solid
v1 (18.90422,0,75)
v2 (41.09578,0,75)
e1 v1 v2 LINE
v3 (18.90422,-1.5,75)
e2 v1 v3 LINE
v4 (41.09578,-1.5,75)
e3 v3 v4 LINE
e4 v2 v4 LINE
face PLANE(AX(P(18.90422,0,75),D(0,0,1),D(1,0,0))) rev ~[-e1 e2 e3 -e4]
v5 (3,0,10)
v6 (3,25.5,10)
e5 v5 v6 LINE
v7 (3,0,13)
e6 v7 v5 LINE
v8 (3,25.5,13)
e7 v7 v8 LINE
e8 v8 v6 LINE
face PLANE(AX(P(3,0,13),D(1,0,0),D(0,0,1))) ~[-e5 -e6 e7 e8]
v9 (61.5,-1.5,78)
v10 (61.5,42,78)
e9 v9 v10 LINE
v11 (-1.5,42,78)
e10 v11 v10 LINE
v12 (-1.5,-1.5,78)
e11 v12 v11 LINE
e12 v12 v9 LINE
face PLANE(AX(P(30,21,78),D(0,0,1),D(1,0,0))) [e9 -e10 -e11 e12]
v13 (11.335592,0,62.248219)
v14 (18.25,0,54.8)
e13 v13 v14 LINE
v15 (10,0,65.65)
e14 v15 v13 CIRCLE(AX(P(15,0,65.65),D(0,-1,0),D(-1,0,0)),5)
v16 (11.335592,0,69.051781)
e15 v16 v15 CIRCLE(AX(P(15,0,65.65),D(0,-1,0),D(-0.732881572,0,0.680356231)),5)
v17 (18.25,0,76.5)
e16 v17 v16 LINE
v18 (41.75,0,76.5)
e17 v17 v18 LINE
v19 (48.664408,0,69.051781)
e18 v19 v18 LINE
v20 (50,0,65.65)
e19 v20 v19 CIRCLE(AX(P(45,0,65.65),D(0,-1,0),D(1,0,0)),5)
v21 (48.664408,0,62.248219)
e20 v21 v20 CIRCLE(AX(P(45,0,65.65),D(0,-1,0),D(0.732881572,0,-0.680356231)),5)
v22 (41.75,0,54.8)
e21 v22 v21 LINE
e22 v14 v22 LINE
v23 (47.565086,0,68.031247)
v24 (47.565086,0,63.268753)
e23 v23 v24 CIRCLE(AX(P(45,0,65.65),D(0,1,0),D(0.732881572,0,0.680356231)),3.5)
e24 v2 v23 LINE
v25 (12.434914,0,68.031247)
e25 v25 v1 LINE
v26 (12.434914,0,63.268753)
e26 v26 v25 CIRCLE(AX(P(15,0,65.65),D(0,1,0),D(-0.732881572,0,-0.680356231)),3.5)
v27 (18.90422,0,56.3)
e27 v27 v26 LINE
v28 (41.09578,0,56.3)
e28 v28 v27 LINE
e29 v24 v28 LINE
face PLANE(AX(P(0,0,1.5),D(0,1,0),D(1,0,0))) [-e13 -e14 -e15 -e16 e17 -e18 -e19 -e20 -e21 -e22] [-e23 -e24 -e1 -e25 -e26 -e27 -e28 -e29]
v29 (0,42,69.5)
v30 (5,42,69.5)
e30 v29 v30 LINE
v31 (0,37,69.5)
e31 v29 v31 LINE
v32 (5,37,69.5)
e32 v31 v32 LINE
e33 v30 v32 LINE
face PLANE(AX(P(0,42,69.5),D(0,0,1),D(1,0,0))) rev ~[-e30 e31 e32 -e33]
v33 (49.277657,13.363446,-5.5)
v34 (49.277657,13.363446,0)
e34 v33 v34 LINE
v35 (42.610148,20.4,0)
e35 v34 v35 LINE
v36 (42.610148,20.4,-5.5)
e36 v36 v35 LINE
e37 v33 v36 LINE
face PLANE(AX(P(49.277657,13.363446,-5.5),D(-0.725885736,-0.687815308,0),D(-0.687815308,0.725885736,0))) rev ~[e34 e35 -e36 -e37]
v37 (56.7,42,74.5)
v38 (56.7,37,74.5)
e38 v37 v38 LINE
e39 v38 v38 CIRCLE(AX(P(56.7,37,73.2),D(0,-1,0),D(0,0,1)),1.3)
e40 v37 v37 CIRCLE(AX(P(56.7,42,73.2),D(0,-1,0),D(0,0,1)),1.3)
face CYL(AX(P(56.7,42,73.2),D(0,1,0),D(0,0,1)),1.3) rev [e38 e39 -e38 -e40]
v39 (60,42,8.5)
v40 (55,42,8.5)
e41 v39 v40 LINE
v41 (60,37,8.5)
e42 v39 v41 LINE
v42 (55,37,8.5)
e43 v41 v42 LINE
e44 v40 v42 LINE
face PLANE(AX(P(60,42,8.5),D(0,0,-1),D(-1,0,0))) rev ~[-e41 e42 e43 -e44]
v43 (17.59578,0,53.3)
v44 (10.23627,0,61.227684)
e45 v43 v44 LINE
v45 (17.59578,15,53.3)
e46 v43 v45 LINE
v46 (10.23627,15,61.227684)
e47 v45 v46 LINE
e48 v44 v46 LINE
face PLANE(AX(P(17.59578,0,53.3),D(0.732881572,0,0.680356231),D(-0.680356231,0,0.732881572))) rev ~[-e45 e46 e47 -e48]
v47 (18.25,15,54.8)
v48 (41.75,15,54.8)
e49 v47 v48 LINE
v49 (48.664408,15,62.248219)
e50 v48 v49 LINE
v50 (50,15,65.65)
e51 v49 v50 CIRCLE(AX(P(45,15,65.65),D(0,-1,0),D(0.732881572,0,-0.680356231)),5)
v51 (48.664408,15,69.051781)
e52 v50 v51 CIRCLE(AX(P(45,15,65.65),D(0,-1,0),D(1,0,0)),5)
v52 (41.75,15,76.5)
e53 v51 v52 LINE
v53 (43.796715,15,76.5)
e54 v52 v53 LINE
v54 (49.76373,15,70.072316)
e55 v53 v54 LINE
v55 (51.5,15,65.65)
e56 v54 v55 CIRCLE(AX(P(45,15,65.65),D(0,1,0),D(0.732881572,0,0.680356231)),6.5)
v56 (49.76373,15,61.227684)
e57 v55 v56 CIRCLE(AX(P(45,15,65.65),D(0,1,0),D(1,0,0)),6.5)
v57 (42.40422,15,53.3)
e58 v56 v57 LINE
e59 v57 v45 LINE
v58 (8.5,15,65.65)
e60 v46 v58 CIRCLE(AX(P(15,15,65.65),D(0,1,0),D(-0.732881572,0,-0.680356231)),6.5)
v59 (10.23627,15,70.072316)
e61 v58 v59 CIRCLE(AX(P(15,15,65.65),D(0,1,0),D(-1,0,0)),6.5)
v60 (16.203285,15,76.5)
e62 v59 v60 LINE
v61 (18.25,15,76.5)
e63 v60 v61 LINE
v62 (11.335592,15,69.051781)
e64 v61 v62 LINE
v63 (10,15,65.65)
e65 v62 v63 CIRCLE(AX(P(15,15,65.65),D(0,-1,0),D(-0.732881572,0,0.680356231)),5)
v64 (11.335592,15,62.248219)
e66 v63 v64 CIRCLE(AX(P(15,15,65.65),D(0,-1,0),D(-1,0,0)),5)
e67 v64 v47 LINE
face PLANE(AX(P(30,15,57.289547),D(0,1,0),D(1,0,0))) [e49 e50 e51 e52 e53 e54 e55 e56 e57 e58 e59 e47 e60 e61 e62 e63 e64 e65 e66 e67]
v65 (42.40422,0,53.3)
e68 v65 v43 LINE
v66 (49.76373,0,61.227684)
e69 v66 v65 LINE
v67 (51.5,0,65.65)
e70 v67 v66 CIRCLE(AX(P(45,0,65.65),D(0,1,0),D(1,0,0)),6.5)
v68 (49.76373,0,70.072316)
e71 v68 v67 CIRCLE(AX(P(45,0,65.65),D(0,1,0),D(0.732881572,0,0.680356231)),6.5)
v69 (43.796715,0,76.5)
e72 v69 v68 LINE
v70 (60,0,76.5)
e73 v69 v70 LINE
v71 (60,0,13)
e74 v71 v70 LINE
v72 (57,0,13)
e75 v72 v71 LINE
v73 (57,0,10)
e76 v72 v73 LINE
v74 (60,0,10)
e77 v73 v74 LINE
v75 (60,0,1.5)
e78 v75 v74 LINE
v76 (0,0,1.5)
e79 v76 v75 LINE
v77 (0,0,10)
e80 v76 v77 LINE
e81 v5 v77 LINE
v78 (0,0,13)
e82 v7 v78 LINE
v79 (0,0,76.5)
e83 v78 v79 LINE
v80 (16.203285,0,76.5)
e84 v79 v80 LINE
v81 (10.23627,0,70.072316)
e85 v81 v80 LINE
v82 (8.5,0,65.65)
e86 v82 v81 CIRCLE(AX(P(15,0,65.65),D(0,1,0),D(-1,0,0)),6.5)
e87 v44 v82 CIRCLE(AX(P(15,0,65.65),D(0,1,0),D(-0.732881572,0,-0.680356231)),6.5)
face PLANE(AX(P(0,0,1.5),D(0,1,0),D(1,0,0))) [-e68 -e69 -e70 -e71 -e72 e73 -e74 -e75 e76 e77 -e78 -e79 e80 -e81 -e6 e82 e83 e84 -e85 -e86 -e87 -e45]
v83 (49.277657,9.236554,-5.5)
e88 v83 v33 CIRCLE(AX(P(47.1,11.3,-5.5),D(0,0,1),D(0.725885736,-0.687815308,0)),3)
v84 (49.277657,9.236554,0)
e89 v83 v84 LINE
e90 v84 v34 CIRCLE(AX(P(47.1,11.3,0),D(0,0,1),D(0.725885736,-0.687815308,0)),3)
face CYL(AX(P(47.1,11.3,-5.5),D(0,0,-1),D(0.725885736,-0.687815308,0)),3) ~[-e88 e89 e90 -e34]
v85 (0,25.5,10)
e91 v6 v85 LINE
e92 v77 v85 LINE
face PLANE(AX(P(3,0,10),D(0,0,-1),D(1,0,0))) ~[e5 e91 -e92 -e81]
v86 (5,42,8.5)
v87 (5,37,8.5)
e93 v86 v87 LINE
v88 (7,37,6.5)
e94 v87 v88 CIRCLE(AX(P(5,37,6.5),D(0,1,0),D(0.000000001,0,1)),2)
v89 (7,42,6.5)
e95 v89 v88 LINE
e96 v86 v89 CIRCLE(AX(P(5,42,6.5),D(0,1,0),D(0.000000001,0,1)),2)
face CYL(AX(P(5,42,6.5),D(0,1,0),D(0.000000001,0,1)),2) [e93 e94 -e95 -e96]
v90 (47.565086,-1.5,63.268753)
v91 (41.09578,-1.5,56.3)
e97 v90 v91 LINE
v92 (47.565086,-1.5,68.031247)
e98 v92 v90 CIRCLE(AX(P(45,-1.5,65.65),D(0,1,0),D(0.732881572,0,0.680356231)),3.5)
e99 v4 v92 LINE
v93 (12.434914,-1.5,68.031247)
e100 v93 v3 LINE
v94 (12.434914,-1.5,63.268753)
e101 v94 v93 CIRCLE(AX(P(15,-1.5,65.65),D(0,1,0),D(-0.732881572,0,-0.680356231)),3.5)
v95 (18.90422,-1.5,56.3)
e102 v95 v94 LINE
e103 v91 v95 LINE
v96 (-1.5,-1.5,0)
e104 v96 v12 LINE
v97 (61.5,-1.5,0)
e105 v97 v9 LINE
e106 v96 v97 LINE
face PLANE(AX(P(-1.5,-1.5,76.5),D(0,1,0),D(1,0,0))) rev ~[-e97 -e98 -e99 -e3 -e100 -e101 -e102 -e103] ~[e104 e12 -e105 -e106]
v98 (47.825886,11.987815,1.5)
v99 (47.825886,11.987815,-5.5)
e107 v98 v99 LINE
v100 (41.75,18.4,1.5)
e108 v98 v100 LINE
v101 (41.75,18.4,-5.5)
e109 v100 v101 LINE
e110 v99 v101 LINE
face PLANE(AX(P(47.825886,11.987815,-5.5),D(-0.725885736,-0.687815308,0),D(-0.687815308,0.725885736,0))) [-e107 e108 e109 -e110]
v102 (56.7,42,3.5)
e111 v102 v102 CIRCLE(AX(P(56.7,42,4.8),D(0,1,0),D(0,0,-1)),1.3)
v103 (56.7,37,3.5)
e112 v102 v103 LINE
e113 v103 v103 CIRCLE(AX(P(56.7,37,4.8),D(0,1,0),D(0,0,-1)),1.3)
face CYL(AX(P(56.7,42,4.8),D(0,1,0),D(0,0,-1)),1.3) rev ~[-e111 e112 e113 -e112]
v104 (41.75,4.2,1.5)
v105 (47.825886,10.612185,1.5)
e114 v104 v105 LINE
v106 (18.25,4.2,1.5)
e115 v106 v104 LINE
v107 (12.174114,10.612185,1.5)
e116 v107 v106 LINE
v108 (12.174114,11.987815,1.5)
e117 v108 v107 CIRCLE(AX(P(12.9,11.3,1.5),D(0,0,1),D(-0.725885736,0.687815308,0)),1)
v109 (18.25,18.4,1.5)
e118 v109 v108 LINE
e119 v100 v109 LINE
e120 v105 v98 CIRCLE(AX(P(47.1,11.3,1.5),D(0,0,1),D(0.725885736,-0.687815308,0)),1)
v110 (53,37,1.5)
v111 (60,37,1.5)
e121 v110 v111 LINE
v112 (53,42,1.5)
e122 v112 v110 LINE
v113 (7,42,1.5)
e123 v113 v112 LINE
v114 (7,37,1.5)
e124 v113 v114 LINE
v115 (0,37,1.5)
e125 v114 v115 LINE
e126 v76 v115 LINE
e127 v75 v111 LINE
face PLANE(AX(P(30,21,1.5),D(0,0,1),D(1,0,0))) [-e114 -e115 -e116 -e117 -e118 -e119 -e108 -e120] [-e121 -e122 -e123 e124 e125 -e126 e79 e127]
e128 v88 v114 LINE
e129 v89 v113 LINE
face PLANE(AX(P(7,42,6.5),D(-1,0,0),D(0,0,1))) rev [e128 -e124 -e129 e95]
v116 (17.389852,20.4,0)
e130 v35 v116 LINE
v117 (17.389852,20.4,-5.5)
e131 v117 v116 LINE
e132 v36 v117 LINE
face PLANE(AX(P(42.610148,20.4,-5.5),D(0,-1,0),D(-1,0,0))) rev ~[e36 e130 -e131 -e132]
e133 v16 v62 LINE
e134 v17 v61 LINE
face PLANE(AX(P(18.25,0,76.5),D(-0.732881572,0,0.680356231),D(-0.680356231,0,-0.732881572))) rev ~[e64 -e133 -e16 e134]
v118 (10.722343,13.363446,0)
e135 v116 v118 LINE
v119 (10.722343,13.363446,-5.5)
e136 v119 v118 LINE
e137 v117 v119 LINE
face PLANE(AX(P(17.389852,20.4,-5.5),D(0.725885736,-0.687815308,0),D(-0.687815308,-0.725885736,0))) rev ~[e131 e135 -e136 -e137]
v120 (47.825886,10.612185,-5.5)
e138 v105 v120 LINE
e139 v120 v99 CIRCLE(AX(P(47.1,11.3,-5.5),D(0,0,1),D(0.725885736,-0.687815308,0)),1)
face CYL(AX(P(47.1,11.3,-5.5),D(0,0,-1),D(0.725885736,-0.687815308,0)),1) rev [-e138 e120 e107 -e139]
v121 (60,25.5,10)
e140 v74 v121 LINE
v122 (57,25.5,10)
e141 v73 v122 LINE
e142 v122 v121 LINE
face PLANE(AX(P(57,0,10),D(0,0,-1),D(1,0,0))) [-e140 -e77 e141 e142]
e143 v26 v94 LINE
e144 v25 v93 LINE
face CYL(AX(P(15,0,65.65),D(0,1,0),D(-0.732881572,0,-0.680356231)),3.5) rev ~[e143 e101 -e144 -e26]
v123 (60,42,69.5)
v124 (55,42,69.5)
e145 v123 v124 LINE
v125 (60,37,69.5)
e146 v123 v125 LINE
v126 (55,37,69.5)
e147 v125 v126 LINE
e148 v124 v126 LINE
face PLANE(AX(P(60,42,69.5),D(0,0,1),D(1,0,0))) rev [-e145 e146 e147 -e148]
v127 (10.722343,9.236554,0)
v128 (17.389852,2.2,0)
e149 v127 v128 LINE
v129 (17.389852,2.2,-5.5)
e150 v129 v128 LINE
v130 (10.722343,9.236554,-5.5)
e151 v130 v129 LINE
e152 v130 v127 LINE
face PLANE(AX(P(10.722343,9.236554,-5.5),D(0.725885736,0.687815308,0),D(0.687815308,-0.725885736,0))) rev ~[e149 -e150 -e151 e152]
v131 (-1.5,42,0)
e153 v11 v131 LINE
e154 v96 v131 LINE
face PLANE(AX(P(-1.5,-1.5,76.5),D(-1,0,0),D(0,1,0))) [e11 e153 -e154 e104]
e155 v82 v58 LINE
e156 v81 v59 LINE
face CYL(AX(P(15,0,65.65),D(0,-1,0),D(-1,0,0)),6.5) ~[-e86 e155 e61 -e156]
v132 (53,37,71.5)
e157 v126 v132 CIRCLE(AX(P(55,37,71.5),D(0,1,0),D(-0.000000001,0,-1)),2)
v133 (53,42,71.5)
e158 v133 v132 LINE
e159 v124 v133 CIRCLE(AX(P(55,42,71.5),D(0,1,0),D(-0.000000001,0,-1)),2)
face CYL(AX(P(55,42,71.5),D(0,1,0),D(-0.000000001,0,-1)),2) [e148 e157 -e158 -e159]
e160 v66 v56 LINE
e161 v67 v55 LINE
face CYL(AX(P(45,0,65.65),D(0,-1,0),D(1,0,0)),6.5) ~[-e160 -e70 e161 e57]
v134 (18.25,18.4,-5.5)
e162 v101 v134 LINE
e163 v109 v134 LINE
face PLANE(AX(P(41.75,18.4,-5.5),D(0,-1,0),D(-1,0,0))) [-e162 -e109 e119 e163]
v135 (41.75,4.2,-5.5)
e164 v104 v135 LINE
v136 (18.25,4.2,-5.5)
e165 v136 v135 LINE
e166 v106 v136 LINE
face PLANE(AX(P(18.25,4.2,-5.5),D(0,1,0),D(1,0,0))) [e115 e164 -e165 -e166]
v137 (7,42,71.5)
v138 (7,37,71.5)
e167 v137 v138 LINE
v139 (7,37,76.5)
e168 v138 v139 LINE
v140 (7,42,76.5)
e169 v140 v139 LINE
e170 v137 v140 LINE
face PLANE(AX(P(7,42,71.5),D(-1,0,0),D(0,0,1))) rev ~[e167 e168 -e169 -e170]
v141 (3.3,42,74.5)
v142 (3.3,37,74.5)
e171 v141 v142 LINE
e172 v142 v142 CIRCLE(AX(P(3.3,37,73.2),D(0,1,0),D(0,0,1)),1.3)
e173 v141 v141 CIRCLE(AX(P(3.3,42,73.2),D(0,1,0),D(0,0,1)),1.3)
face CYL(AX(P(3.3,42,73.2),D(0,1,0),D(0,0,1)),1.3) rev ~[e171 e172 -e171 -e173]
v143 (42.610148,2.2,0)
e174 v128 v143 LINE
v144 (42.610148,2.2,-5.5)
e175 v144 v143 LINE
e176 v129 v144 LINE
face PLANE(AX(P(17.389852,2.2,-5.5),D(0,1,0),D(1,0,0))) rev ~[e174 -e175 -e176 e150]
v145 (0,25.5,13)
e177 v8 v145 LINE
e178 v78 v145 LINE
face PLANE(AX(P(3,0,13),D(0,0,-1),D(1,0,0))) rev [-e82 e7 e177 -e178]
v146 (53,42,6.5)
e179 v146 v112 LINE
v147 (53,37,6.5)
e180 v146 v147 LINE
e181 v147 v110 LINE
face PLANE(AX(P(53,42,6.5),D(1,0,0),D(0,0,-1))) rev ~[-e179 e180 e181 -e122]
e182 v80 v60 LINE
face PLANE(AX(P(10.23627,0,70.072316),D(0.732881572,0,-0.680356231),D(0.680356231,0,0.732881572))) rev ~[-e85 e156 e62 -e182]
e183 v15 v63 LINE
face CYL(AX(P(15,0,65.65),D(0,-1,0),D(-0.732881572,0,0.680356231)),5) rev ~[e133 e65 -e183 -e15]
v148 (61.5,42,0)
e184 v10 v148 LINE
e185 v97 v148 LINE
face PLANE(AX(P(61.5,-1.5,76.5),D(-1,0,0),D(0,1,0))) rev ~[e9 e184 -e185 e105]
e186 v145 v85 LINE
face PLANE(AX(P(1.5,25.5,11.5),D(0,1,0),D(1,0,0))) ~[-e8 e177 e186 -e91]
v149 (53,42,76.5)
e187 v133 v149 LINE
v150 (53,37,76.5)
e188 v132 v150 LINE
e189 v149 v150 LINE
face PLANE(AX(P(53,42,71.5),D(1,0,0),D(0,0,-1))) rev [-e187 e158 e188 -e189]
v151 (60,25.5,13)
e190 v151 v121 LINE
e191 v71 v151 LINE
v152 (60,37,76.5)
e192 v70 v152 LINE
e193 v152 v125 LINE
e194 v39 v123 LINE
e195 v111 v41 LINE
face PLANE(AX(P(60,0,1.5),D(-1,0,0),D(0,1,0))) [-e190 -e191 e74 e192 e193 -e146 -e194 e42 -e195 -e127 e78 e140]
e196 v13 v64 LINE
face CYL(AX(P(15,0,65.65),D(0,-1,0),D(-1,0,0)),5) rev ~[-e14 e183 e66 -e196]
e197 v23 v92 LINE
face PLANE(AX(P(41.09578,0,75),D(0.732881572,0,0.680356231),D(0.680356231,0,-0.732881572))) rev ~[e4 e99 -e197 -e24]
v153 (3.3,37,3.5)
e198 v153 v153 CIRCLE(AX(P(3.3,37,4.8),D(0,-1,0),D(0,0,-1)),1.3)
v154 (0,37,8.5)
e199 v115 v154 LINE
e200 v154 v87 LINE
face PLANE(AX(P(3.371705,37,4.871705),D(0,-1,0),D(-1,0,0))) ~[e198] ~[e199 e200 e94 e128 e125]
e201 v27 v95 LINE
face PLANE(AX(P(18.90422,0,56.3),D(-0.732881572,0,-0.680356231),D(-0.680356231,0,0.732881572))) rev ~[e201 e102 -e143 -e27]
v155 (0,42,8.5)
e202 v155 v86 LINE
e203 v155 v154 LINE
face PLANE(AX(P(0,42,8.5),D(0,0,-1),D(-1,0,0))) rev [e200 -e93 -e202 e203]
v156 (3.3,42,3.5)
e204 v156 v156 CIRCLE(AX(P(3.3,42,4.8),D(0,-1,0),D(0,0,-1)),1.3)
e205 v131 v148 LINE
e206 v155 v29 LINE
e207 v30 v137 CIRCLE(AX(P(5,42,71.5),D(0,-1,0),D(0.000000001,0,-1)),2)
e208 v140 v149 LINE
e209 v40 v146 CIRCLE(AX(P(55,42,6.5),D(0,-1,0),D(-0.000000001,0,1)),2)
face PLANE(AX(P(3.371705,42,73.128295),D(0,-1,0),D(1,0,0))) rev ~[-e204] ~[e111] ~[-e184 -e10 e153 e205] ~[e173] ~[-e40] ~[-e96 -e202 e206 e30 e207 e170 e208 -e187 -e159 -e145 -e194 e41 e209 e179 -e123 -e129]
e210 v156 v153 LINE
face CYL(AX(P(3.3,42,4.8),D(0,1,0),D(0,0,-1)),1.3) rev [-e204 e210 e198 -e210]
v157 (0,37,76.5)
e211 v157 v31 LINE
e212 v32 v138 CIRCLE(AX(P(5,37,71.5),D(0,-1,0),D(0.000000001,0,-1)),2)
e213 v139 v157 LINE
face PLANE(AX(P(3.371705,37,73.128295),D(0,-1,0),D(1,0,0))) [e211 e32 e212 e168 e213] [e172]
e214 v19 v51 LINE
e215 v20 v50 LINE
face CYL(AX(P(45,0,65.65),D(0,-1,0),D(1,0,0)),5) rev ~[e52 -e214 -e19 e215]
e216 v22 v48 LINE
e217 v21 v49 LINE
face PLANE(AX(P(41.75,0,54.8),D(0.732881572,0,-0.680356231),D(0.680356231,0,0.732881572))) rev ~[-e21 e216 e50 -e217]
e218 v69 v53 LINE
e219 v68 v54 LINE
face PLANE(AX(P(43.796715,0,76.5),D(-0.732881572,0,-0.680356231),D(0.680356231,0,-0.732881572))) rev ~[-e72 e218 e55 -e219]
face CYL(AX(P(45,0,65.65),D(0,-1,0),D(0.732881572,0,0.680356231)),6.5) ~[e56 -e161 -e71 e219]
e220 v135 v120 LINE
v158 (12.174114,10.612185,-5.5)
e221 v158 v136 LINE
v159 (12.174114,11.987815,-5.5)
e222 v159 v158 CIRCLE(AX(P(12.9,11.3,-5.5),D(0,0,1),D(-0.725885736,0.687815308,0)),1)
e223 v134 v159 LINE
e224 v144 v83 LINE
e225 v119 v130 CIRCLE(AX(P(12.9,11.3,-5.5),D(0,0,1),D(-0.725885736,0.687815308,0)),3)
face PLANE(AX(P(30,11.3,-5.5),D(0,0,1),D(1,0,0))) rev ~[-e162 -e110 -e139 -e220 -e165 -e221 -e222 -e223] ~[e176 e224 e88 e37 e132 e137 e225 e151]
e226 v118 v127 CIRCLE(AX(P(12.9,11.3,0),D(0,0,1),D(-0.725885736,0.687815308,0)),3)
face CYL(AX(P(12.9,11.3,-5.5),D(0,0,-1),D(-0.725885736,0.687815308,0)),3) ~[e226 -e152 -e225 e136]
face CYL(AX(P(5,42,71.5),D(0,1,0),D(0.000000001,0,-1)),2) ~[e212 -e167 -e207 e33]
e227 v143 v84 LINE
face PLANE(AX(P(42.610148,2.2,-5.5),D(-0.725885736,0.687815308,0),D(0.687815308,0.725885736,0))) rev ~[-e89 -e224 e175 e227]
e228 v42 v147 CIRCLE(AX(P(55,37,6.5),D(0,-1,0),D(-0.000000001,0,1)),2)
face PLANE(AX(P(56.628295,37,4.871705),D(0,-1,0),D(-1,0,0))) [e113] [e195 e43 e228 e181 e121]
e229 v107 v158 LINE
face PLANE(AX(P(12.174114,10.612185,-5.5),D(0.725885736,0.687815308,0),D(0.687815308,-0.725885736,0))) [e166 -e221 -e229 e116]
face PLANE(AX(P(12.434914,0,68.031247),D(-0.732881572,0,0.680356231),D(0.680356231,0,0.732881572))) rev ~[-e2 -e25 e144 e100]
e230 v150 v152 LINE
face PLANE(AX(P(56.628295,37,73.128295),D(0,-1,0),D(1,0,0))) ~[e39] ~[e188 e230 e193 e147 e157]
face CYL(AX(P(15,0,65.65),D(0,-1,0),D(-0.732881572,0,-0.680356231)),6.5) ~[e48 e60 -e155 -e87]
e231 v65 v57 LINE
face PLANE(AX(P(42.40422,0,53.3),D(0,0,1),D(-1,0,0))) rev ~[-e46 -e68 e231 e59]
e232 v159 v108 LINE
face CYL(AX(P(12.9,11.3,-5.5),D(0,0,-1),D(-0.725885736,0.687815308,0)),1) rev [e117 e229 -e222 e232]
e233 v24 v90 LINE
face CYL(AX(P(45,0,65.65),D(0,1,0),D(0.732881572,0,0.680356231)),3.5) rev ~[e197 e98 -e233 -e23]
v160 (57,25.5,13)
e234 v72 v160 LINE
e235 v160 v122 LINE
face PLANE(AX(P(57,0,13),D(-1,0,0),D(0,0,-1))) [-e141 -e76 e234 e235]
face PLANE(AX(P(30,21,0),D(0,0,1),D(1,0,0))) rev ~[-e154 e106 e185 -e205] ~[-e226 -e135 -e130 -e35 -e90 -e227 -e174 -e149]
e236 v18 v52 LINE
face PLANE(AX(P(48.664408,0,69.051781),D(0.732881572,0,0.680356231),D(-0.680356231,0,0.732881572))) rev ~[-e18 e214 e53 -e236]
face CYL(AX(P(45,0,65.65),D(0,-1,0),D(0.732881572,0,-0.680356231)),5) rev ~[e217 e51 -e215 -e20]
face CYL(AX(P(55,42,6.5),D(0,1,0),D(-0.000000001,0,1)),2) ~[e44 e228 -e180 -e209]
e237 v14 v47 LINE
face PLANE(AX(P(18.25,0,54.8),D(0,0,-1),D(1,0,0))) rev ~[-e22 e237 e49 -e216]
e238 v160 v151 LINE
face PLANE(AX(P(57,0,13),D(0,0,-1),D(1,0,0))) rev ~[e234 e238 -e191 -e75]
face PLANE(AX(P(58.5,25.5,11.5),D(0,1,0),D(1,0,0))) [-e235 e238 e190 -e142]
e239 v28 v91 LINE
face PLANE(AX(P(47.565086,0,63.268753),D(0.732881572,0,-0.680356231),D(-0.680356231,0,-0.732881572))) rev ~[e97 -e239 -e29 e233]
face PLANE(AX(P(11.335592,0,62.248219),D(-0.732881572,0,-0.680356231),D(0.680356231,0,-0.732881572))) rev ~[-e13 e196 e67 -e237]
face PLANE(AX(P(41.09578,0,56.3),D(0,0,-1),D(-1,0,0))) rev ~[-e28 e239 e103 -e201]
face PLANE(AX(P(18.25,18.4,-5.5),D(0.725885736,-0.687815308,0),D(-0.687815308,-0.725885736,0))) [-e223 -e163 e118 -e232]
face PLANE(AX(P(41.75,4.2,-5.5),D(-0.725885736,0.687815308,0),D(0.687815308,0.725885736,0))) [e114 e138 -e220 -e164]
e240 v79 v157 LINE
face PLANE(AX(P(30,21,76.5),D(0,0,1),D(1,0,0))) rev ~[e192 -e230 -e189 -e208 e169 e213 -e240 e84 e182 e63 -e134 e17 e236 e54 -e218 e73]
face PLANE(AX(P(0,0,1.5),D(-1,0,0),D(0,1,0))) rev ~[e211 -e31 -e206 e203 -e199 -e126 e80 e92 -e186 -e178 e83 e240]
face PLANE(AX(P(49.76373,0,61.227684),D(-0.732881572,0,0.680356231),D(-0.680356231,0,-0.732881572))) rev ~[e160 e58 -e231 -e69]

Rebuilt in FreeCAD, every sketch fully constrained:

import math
import FreeCAD as App
import Part
import Sketcher


def add_polygon(sketch, points):
    """Adds a closed chain of lines whose ends are joined by coincident constraints."""
    first, n = sketch.GeometryCount, len(points)
    for a, b in zip(points, points[1:] + points[:1]):
        sketch.addGeometry(Part.LineSegment(App.Vector(*a, 0), App.Vector(*b, 0)), False)
    for i in range(n):
        sketch.addConstraint(Sketcher.Constraint("Coincident", first + i, 2, first + (i + 1) % n, 1))

doc = App.newDocument("Part")
params = doc.addObject("Spreadsheet::Sheet", "Params")
for row, (alias, value) in enumerate([
    ("sketch1_radius", "1 mm"),
    ("sketch1_width", "63 mm"),
    ("sketch1_height", "45 mm"),
    ("sketch1_width2", "23.5 mm"),
    ("pad1_length", "1.5 mm"),
    ("sketch2_width", "63 mm"),
    ("sketch2_width2", "60 mm"),
    ("sketch2_height", "45 mm"),
    ("sketch2_height2", "42 mm"),
    ("pad2_length", "75 mm"),
    ("sketch3_radius", "5 mm"),
    ("sketch3_radius2", "6.5 mm"),
    ("sketch3_width", "23.5 mm"),
    ("pad3_length", "15 mm"),
    ("sketch4_radius", "3.5 mm"),
    ("pocket1_length", "27 mm"),
    ("sketch5_width", "63 mm"),
    ("sketch5_height", "45 mm"),
    ("pad4_length", "1.5 mm"),
    ("sketch6_width", "63 mm"),
    ("sketch6_height", "1.5 mm"),
    ("sketch7_radius", "2 mm"),
    ("sketch7_diameter", "2.6 mm"),
    ("sketch7_width", "7 mm"),
    ("pad5_length", "5 mm"),
    ("sketch8_radius", "2 mm"),
    ("sketch8_diameter", "2.6 mm"),
    ("sketch8_width", "7 mm"),
    ("pad6_length", "5 mm"),
    ("sketch9_radius", "3 mm"),
    ("sketch9_radius2", "1 mm"),
    ("sketch9_width", "23.5 mm"),
    ("pad7_length", "5.5 mm"),
    ("sketch10_width", "3 mm"),
    ("pad8_length", "25.5 mm"),
], start=1):
    params.set(f"A{row}", alias)
    params.set(f"B{row}", "=" + value)
    params.setAlias(f"B{row}", alias)

body = doc.addObject("PartDesign::Body", "Body")

# Sketch on XY plane
sketch1 = body.newObject("Sketcher::SketchObject", "Sketch")
sketch1.AttachmentSupport = (doc.getObject("XY_Plane"), [""])
sketch1.MapMode = "FlatFace"
add_polygon(sketch1, [(-1.5, 43.5), (-1.5, -1.5), (61.5, -1.5), (61.5, 43.5)])  # lines 0-3
sketch1.addGeometry(Part.LineSegment(App.Vector(47.8, 10.6, 0), App.Vector(41.8, 4.2, 0)), False)  # 4
sketch1.addGeometry(Part.LineSegment(App.Vector(41.8, 4.2, 0), App.Vector(18.2, 4.2, 0)), False)  # 5
sketch1.addGeometry(Part.LineSegment(App.Vector(18.2, 4.2, 0), App.Vector(12.2, 10.6, 0)), False)  # 6
sketch1.addGeometry(Part.ArcOfCircle(Part.Circle(App.Vector(12.9, 11.3, 0), App.Vector(0, 0, 1), 1), math.radians(137), math.radians(223)), False)  # 7
sketch1.addGeometry(Part.LineSegment(App.Vector(12.2, 12, 0), App.Vector(18.2, 18.4, 0)), False)  # 8
sketch1.addGeometry(Part.LineSegment(App.Vector(18.2, 18.4, 0), App.Vector(41.8, 18.4, 0)), False)  # 9
sketch1.addGeometry(Part.LineSegment(App.Vector(41.8, 18.4, 0), App.Vector(47.8, 12, 0)), False)  # 10
sketch1.addGeometry(Part.ArcOfCircle(Part.Circle(App.Vector(47.1, 11.3, 0), App.Vector(0, 0, 1), 1), math.radians(-43), math.radians(43)), False)  # 11
sketch1.addConstraint(Sketcher.Constraint("Coincident", 4, 2, 5, 1))
sketch1.addConstraint(Sketcher.Constraint("Coincident", 5, 2, 6, 1))
sketch1.addConstraint(Sketcher.Constraint("Tangent", 6, 2, 7, 2))
sketch1.addConstraint(Sketcher.Constraint("Tangent", 7, 1, 8, 1))
sketch1.addConstraint(Sketcher.Constraint("Coincident", 8, 2, 9, 1))
sketch1.addConstraint(Sketcher.Constraint("Coincident", 9, 2, 10, 1))
sketch1.addConstraint(Sketcher.Constraint("Tangent", 10, 2, 11, 2))
sketch1.addConstraint(Sketcher.Constraint("Tangent", 11, 1, 4, 1))
sketch1.addConstraint(Sketcher.Constraint("Vertical", 0))
sketch1.addConstraint(Sketcher.Constraint("Horizontal", 1))
sketch1.addConstraint(Sketcher.Constraint("Vertical", 2))
sketch1.addConstraint(Sketcher.Constraint("Horizontal", 3))
sketch1.addConstraint(Sketcher.Constraint("Horizontal", 5))
sketch1.addConstraint(Sketcher.Constraint("Horizontal", 9))
sketch1.addConstraint(Sketcher.Constraint("Equal", 7, 11))
sketch1.addConstraint(Sketcher.Constraint("Parallel", 4, 8))
sketch1.addConstraint(Sketcher.Constraint("Parallel", 6, 10))
sketch1.addConstraint(Sketcher.Constraint("Horizontal", 7, 3, 11, 3))
sketch1.addConstraint(Sketcher.Constraint("Horizontal", 7, 1, 10, 2))
sketch1.addConstraint(Sketcher.Constraint("Vertical", 5, 2, 8, 2))
sketch1.addConstraint(Sketcher.Constraint("Radius", 7, 1.0))
sketch1.addConstraint(Sketcher.Constraint("DistanceX", 1, 1, 1, 2, 63.0))
sketch1.addConstraint(Sketcher.Constraint("DistanceY", 0, 2, 0, 1, 45.0))
sketch1.addConstraint(Sketcher.Constraint("DistanceX", 5, 2, 5, 1, 23.5))
sketch1.addConstraint(Sketcher.Constraint("DistanceX", -1, 1, 7, 3, 12.9))
sketch1.addConstraint(Sketcher.Constraint("DistanceY", -1, 1, 7, 3, 11.3))
sketch1.addConstraint(Sketcher.Constraint("DistanceX", -1, 1, 11, 3, 47.1))
sketch1.addConstraint(Sketcher.Constraint("DistanceX", 0, 2, -1, 1, 1.5))
sketch1.addConstraint(Sketcher.Constraint("DistanceY", 0, 2, -1, 1, 1.5))
sketch1.addConstraint(Sketcher.Constraint("DistanceY", -1, 1, 4, 2, 4.2))
sketch1.setExpression("Constraints[24]", "Params.sketch1_radius")
sketch1.setExpression("Constraints[25]", "Params.sketch1_width")
sketch1.setExpression("Constraints[26]", "Params.sketch1_height")
sketch1.setExpression("Constraints[27]", "Params.sketch1_width2")
pad1 = body.newObject("PartDesign::Pad", "Pad")
pad1.Profile = sketch1
pad1.setExpression("Length", "Params.pad1_length")

# Sketch on XY plane
sketch2 = body.newObject("Sketcher::SketchObject", "Sketch001")
sketch2.AttachmentSupport = (doc.getObject("XY_Plane"), [""])
sketch2.MapMode = "FlatFace"
sketch2.AttachmentOffset = App.Placement(App.Vector(0, 0, 1.5), App.Rotation())
add_polygon(sketch2, [(-2, 44), (-2, -2), (62, -2), (62, 44)])  # lines 0-3
add_polygon(sketch2, [(60, 0), (0, 0), (0, 42), (60, 42)])  # lines 4-7
sketch2.addConstraint(Sketcher.Constraint("Vertical", 0))
sketch2.addConstraint(Sketcher.Constraint("Horizontal", 1))
sketch2.addConstraint(Sketcher.Constraint("Vertical", 2))
sketch2.addConstraint(Sketcher.Constraint("Horizontal", 3))
sketch2.addConstraint(Sketcher.Constraint("Horizontal", 4))
sketch2.addConstraint(Sketcher.Constraint("Vertical", 5))
sketch2.addConstraint(Sketcher.Constraint("Horizontal", 6))
sketch2.addConstraint(Sketcher.Constraint("Vertical", 7))
sketch2.addConstraint(Sketcher.Constraint("Coincident", 4, 2, -1, 1))
sketch2.addConstraint(Sketcher.Constraint("DistanceX", 1, 1, 1, 2, 63.0))
sketch2.addConstraint(Sketcher.Constraint("DistanceX", 4, 2, 4, 1, 60.0))
sketch2.addConstraint(Sketcher.Constraint("DistanceY", 0, 2, 0, 1, 45.0))
sketch2.addConstraint(Sketcher.Constraint("DistanceY", 5, 1, 5, 2, 42.0))
sketch2.addConstraint(Sketcher.Constraint("DistanceX", 0, 2, -1, 1, 1.5))
sketch2.addConstraint(Sketcher.Constraint("DistanceY", 0, 2, -1, 1, 1.5))
sketch2.setExpression("Constraints[17]", "Params.sketch2_width")
sketch2.setExpression("Constraints[18]", "Params.sketch2_width2")
sketch2.setExpression("Constraints[19]", "Params.sketch2_height")
sketch2.setExpression("Constraints[20]", "Params.sketch2_height2")
pad2 = body.newObject("PartDesign::Pad", "Pad001")
pad2.Profile = sketch2
pad2.setExpression("Length", "Params.pad2_length")

# Sketch on XZ plane
sketch3 = body.newObject("Sketcher::SketchObject", "Sketch002")
sketch3.AttachmentSupport = (doc.getObject("XZ_Plane"), [""])
sketch3.MapMode = "FlatFace"
sketch3.addGeometry(Part.LineSegment(App.Vector(18.2, 54.8, 0), App.Vector(41.8, 54.8, 0)), False)
sketch3.addGeometry(Part.LineSegment(App.Vector(41.8, 54.8, 0), App.Vector(48.7, 62.2, 0)), False)
sketch3.addGeometry(Part.ArcOfCircle(Part.Circle(App.Vector(45, 65.6, 0), App.Vector(0, 0, 1), 5), math.radians(-43), math.radians(0)), False)
sketch3.addGeometry(Part.ArcOfCircle(Part.Circle(App.Vector(45, 65.7, 0), App.Vector(0, 0, 1), 5), math.radians(0), math.radians(43)), False)
sketch3.addGeometry(Part.LineSegment(App.Vector(48.7, 69.1, 0), App.Vector(41.8, 76.5, 0)), False)
sketch3.addGeometry(Part.LineSegment(App.Vector(41.8, 76.5, 0), App.Vector(43.8, 76.5, 0)), False)
sketch3.addGeometry(Part.LineSegment(App.Vector(43.8, 76.5, 0), App.Vector(49.8, 70.1, 0)), False)
sketch3.addGeometry(Part.ArcOfCircle(Part.Circle(App.Vector(45, 65.6, 0), App.Vector(0, 0, 1), 6.5), math.radians(0), math.radians(43)), False)
sketch3.addGeometry(Part.ArcOfCircle(Part.Circle(App.Vector(45, 65.7, 0), App.Vector(0, 0, 1), 6.5), math.radians(-43), math.radians(0)), False)
sketch3.addGeometry(Part.LineSegment(App.Vector(49.8, 61.2, 0), App.Vector(42.4, 53.3, 0)), False)
sketch3.addGeometry(Part.LineSegment(App.Vector(42.4, 53.3, 0), App.Vector(17.6, 53.3, 0)), False)
sketch3.addGeometry(Part.LineSegment(App.Vector(17.6, 53.3, 0), App.Vector(10.2, 61.2, 0)), False)
sketch3.addGeometry(Part.ArcOfCircle(Part.Circle(App.Vector(15, 65.7, 0), App.Vector(0, 0, 1), 6.5), math.radians(-180), math.radians(-137)), False)
sketch3.addGeometry(Part.ArcOfCircle(Part.Circle(App.Vector(15, 65.6, 0), App.Vector(0, 0, 1), 6.5), math.radians(137), math.radians(180)), False)
sketch3.addGeometry(Part.LineSegment(App.Vector(10.2, 70.1, 0), App.Vector(16.2, 76.5, 0)), False)
sketch3.addGeometry(Part.LineSegment(App.Vector(16.2, 76.5, 0), App.Vector(18.2, 76.5, 0)), False)
sketch3.addGeometry(Part.LineSegment(App.Vector(18.2, 76.5, 0), App.Vector(11.3, 69.1, 0)), False)
sketch3.addGeometry(Part.ArcOfCircle(Part.Circle(App.Vector(15, 65.7, 0), App.Vector(0, 0, 1), 5), math.radians(137), math.radians(180)), False)
sketch3.addGeometry(Part.ArcOfCircle(Part.Circle(App.Vector(15, 65.6, 0), App.Vector(0, 0, 1), 5), math.radians(180), math.radians(223)), False)
sketch3.addGeometry(Part.LineSegment(App.Vector(11.3, 62.2, 0), App.Vector(18.2, 54.8, 0)), False)
sketch3.addConstraint(Sketcher.Constraint("Coincident", 0, 2, 1, 1))
sketch3.addConstraint(Sketcher.Constraint("Tangent", 1, 2, 2, 1))
sketch3.addConstraint(Sketcher.Constraint("Tangent", 2, 2, 3, 1))
sketch3.addConstraint(Sketcher.Constraint("Tangent", 3, 2, 4, 1))
sketch3.addConstraint(Sketcher.Constraint("Coincident", 4, 2, 5, 1))
sketch3.addConstraint(Sketcher.Constraint("Coincident", 5, 2, 6, 1))
sketch3.addConstraint(Sketcher.Constraint("Tangent", 6, 2, 7, 2))
sketch3.addConstraint(Sketcher.Constraint("Tangent", 7, 1, 8, 2))
sketch3.addConstraint(Sketcher.Constraint("Tangent", 8, 1, 9, 1))
sketch3.addConstraint(Sketcher.Constraint("Coincident", 9, 2, 10, 1))
sketch3.addConstraint(Sketcher.Constraint("Coincident", 10, 2, 11, 1))
sketch3.addConstraint(Sketcher.Constraint("Tangent", 11, 2, 12, 2))
sketch3.addConstraint(Sketcher.Constraint("Tangent", 12, 1, 13, 2))
sketch3.addConstraint(Sketcher.Constraint("Tangent", 13, 1, 14, 1))
sketch3.addConstraint(Sketcher.Constraint("Coincident", 14, 2, 15, 1))
sketch3.addConstraint(Sketcher.Constraint("Coincident", 15, 2, 16, 1))
sketch3.addConstraint(Sketcher.Constraint("Tangent", 16, 2, 17, 1))
sketch3.addConstraint(Sketcher.Constraint("Tangent", 17, 2, 18, 1))
sketch3.addConstraint(Sketcher.Constraint("Tangent", 18, 2, 19, 1))
sketch3.addConstraint(Sketcher.Constraint("Coincident", 19, 2, 0, 1))
sketch3.addConstraint(Sketcher.Constraint("Horizontal", 0))
sketch3.addConstraint(Sketcher.Constraint("Horizontal", 5))
sketch3.addConstraint(Sketcher.Constraint("Horizontal", 10))
sketch3.addConstraint(Sketcher.Constraint("Horizontal", 15))
sketch3.addConstraint(Sketcher.Constraint("Coincident", 7, 3, 2, 3))
sketch3.addConstraint(Sketcher.Constraint("Coincident", 17, 3, 12, 3))
sketch3.addConstraint(Sketcher.Constraint("Equal", 2, 3))
sketch3.addConstraint(Sketcher.Constraint("Equal", 7, 8))
sketch3.addConstraint(Sketcher.Constraint("Equal", 8, 12))
sketch3.addConstraint(Sketcher.Constraint("Equal", 12, 13))
sketch3.addConstraint(Sketcher.Constraint("Equal", 3, 17))
sketch3.addConstraint(Sketcher.Constraint("Equal", 17, 18))
sketch3.addConstraint(Sketcher.Constraint("Parallel", 4, 6))
sketch3.addConstraint(Sketcher.Constraint("Parallel", 1, 9))
sketch3.addConstraint(Sketcher.Constraint("Parallel", 6, 11))
sketch3.addConstraint(Sketcher.Constraint("Parallel", 9, 14))
sketch3.addConstraint(Sketcher.Constraint("Parallel", 14, 16))
sketch3.addConstraint(Sketcher.Constraint("Parallel", 11, 19))
sketch3.addConstraint(Sketcher.Constraint("Horizontal", 8, 3, 12, 3))
sketch3.addConstraint(Sketcher.Constraint("Horizontal", 18, 3, 2, 2))
sketch3.addConstraint(Sketcher.Constraint("Horizontal", 2, 2, 7, 1))
sketch3.addConstraint(Sketcher.Constraint("Horizontal", 8, 1, 11, 2))
sketch3.addConstraint(Sketcher.Constraint("Horizontal", 7, 1, 12, 1))
sketch3.addConstraint(Sketcher.Constraint("Horizontal", 5, 2, 14, 2))
sketch3.addConstraint(Sketcher.Constraint("Horizontal", 12, 1, 17, 2))
sketch3.addConstraint(Sketcher.Constraint("Vertical", 0, 2, 4, 2))
sketch3.addConstraint(Sketcher.Constraint("Radius", 2, 5.0))
sketch3.addConstraint(Sketcher.Constraint("Radius", 7, 6.5))
sketch3.addConstraint(Sketcher.Constraint("DistanceX", 0, 1, 0, 2, 23.5))
sketch3.addConstraint(Sketcher.Constraint("DistanceX", -1, 1, 2, 3, 45.0))
sketch3.addConstraint(Sketcher.Constraint("DistanceX", -1, 1, 12, 3, 15.0))
sketch3.addConstraint(Sketcher.Constraint("DistanceY", -1, 1, 0, 2, 54.8))
sketch3.addConstraint(Sketcher.Constraint("DistanceY", -1, 1, 4, 2, 76.5))
sketch3.addConstraint(Sketcher.Constraint("DistanceY", -1, 1, 9, 2, 53.3))
sketch3.setExpression("Constraints[46]", "Params.sketch3_radius")
sketch3.setExpression("Constraints[47]", "Params.sketch3_radius2")
sketch3.setExpression("Constraints[48]", "Params.sketch3_width")
pad3 = body.newObject("PartDesign::Pad", "Pad002")
pad3.Profile = sketch3
pad3.setExpression("Length", "Params.pad3_length")
pad3.Reversed = True

# Sketch on XZ plane
sketch4 = body.newObject("Sketcher::SketchObject", "Sketch003")
sketch4.AttachmentSupport = (doc.getObject("XZ_Plane"), [""])
sketch4.MapMode = "FlatFace"
sketch4.addGeometry(Part.LineSegment(App.Vector(41.1, 56.3, 0), App.Vector(18.9, 56.3, 0)), False)
sketch4.addGeometry(Part.LineSegment(App.Vector(18.9, 56.3, 0), App.Vector(12.4, 63.3, 0)), False)
sketch4.addGeometry(Part.ArcOfCircle(Part.Circle(App.Vector(15, 65.7, 0), App.Vector(0, 0, 1), 3.5), math.radians(137), math.radians(223)), False)
sketch4.addGeometry(Part.LineSegment(App.Vector(12.4, 68, 0), App.Vector(18.9, 75, 0)), False)
sketch4.addGeometry(Part.LineSegment(App.Vector(18.9, 75, 0), App.Vector(41.1, 75, 0)), False)
sketch4.addGeometry(Part.LineSegment(App.Vector(41.1, 75, 0), App.Vector(47.6, 68, 0)), False)
sketch4.addGeometry(Part.ArcOfCircle(Part.Circle(App.Vector(45, 65.7, 0), App.Vector(0, 0, 1), 3.5), math.radians(-43), math.radians(43)), False)
sketch4.addGeometry(Part.LineSegment(App.Vector(47.6, 63.3, 0), App.Vector(41.1, 56.3, 0)), False)
sketch4.addConstraint(Sketcher.Constraint("Coincident", 0, 2, 1, 1))
sketch4.addConstraint(Sketcher.Constraint("Tangent", 1, 2, 2, 2))
sketch4.addConstraint(Sketcher.Constraint("Tangent", 2, 1, 3, 1))
sketch4.addConstraint(Sketcher.Constraint("Coincident", 3, 2, 4, 1))
sketch4.addConstraint(Sketcher.Constraint("Coincident", 4, 2, 5, 1))
sketch4.addConstraint(Sketcher.Constraint("Tangent", 5, 2, 6, 2))
sketch4.addConstraint(Sketcher.Constraint("Tangent", 6, 1, 7, 1))
sketch4.addConstraint(Sketcher.Constraint("Coincident", 7, 2, 0, 1))
sketch4.addConstraint(Sketcher.Constraint("Horizontal", 0))
sketch4.addConstraint(Sketcher.Constraint("Horizontal", 4))
sketch4.addConstraint(Sketcher.Constraint("Equal", 2, 6))
sketch4.addConstraint(Sketcher.Constraint("Parallel", 1, 5))
sketch4.addConstraint(Sketcher.Constraint("Parallel", 3, 7))
sketch4.addConstraint(Sketcher.Constraint("Horizontal", 2, 3, 6, 3))
sketch4.addConstraint(Sketcher.Constraint("Horizontal", 2, 1, 5, 2))
sketch4.addConstraint(Sketcher.Constraint("Vertical", 0, 2, 3, 2))
sketch4.addConstraint(Sketcher.Constraint("Radius", 2, 3.5))
sketch4.addConstraint(Sketcher.Constraint("DistanceX", -1, 1, 2, 3, 15.0))
sketch4.addConstraint(Sketcher.Constraint("DistanceX", -1, 1, 6, 3, 45.0))
sketch4.addConstraint(Sketcher.Constraint("DistanceY", -1, 1, 3, 2, 75.0))
sketch4.addConstraint(Sketcher.Constraint("DistanceY", -1, 1, 0, 2, 56.3))
sketch4.addConstraint(Sketcher.Constraint("DistanceX", 0, 2, 0, 1, 22.19156))
sketch4.setExpression("Constraints[16]", "Params.sketch4_radius")
pocket1 = body.newObject("PartDesign::Pocket", "Pocket")
pocket1.Profile = sketch4
pocket1.setExpression("Length", "Params.pocket1_length")
pocket1.Reversed = True

# Sketch on XY plane
sketch5 = body.newObject("Sketcher::SketchObject", "Sketch004")
sketch5.AttachmentSupport = (doc.getObject("XY_Plane"), [""])
sketch5.MapMode = "FlatFace"
sketch5.AttachmentOffset = App.Placement(App.Vector(0, 0, 76.5), App.Rotation())
add_polygon(sketch5, [(-2, 44), (-2, -2), (62, -2), (62, 44)])  # lines 0-3
sketch5.addConstraint(Sketcher.Constraint("Vertical", 0))
sketch5.addConstraint(Sketcher.Constraint("Horizontal", 1))
sketch5.addConstraint(Sketcher.Constraint("Vertical", 2))
sketch5.addConstraint(Sketcher.Constraint("Horizontal", 3))
sketch5.addConstraint(Sketcher.Constraint("DistanceX", 1, 1, 1, 2, 63.0))
sketch5.addConstraint(Sketcher.Constraint("DistanceY", 0, 2, 0, 1, 45.0))
sketch5.addConstraint(Sketcher.Constraint("DistanceX", 0, 2, -1, 1, 1.5))
sketch5.addConstraint(Sketcher.Constraint("DistanceY", 0, 2, -1, 1, 1.5))
sketch5.setExpression("Constraints[8]", "Params.sketch5_width")
sketch5.setExpression("Constraints[9]", "Params.sketch5_height")
pad4 = body.newObject("PartDesign::Pad", "Pad003")
pad4.Profile = sketch5
pad4.setExpression("Length", "Params.pad4_length")

# Sketch on XY plane
sketch6 = body.newObject("Sketcher::SketchObject", "Sketch005")
sketch6.AttachmentSupport = (doc.getObject("XY_Plane"), [""])
sketch6.MapMode = "FlatFace"
sketch6.AttachmentOffset = App.Placement(App.Vector(0, 0, 78), App.Rotation())
add_polygon(sketch6, [(-1.5, 43.5), (-1.5, 42), (61.5, 42), (61.5, 43.5)])  # lines 0-3
sketch6.addConstraint(Sketcher.Constraint("Vertical", 0))
sketch6.addConstraint(Sketcher.Constraint("Horizontal", 1))
sketch6.addConstraint(Sketcher.Constraint("Vertical", 2))
sketch6.addConstraint(Sketcher.Constraint("Horizontal", 3))
sketch6.addConstraint(Sketcher.Constraint("DistanceX", 1, 1, 1, 2, 63.0))
sketch6.addConstraint(Sketcher.Constraint("DistanceY", 0, 2, 0, 1, 1.5))
sketch6.addConstraint(Sketcher.Constraint("DistanceY", -1, 1, 0, 2, 42.0))
sketch6.addConstraint(Sketcher.Constraint("DistanceX", 0, 2, -1, 1, 1.5))
sketch6.setExpression("Constraints[8]", "Params.sketch6_width")
sketch6.setExpression("Constraints[9]", "Params.sketch6_height")
pocket2 = body.newObject("PartDesign::Pocket", "Pocket001")
pocket2.Profile = sketch6
pocket2.Type = "ThroughAll"

# Sketch on XZ plane
sketch7 = body.newObject("Sketcher::SketchObject", "Sketch006")
sketch7.AttachmentSupport = (doc.getObject("XZ_Plane"), [""])
sketch7.MapMode = "FlatFace"
sketch7.AttachmentOffset = App.Placement(App.Vector(0, 0, -42), App.Rotation())
sketch7.addGeometry(Part.LineSegment(App.Vector(60, 8.5, 0), App.Vector(60, 1.5, 0)), False)
sketch7.addGeometry(Part.LineSegment(App.Vector(60, 1.5, 0), App.Vector(53, 1.5, 0)), False)
sketch7.addGeometry(Part.LineSegment(App.Vector(53, 1.5, 0), App.Vector(53, 6.5, 0)), False)
sketch7.addGeometry(Part.ArcOfCircle(Part.Circle(App.Vector(55, 6.5, 0), App.Vector(0, 0, 1), 2), math.radians(90), math.radians(180)), False)
sketch7.addGeometry(Part.LineSegment(App.Vector(55, 8.5, 0), App.Vector(60, 8.5, 0)), False)
sketch7.addGeometry(Part.Circle(App.Vector(56.7, 4.8, 0), App.Vector(0, 0, 1), 1.3), False)
sketch7.addConstraint(Sketcher.Constraint("Coincident", 0, 2, 1, 1))
sketch7.addConstraint(Sketcher.Constraint("Coincident", 1, 2, 2, 1))
sketch7.addConstraint(Sketcher.Constraint("Tangent", 2, 2, 3, 2))
sketch7.addConstraint(Sketcher.Constraint("Tangent", 3, 1, 4, 1))
sketch7.addConstraint(Sketcher.Constraint("Coincident", 4, 2, 0, 1))
sketch7.addConstraint(Sketcher.Constraint("Vertical", 0))
sketch7.addConstraint(Sketcher.Constraint("Horizontal", 1))
sketch7.addConstraint(Sketcher.Constraint("Vertical", 2))
sketch7.addConstraint(Sketcher.Constraint("Horizontal", 4))
sketch7.addConstraint(Sketcher.Constraint("Equal", 1, 0))
sketch7.addConstraint(Sketcher.Constraint("Radius", 3, 2.0))
sketch7.addConstraint(Sketcher.Constraint("Diameter", 5, 2.6))
sketch7.addConstraint(Sketcher.Constraint("DistanceX", 1, 2, 1, 1, 7.0))
sketch7.addConstraint(Sketcher.Constraint("DistanceX", -1, 1, 3, 3, 55.0))
sketch7.addConstraint(Sketcher.Constraint("DistanceY", -1, 1, 3, 3, 6.5))
sketch7.addConstraint(Sketcher.Constraint("DistanceX", -1, 1, 5, 3, 56.7))
sketch7.addConstraint(Sketcher.Constraint("DistanceY", -1, 1, 5, 3, 4.8))
sketch7.setExpression("Constraints[10]", "Params.sketch7_radius")
sketch7.setExpression("Constraints[11]", "Params.sketch7_diameter")
sketch7.setExpression("Constraints[12]", "Params.sketch7_width")
pad5 = body.newObject("PartDesign::Pad", "Pad004")
pad5.Profile = sketch7
pad5.setExpression("Length", "Params.pad5_length")
doc.recompute()

datumplane = body.newObject("PartDesign::Plane", "DatumPlane")
datumplane.AttachmentSupport = (doc.getObject("XY_Plane"), [""])
datumplane.MapMode = "FlatFace"
datumplane.AttachmentOffset = App.Placement(App.Vector(0, 0, 39), App.Rotation())
mirrored = body.newObject("PartDesign::Mirrored", "Mirrored")
mirrored.Originals = [pad5]
mirrored.MirrorPlane = (datumplane, [""])
body.Tip = mirrored
doc.recompute()

datumplane2 = body.newObject("PartDesign::Plane", "DatumPlane001")
datumplane2.AttachmentSupport = (doc.getObject("YZ_Plane"), [""])
datumplane2.MapMode = "FlatFace"
datumplane2.AttachmentOffset = App.Placement(App.Vector(0, 0, 30), App.Rotation())
mirrored2 = body.newObject("PartDesign::Mirrored", "Mirrored001")
mirrored2.Originals = [pad5]
mirrored2.MirrorPlane = (datumplane2, [""])
body.Tip = mirrored2

# Sketch on XZ plane
sketch8 = body.newObject("Sketcher::SketchObject", "Sketch007")
sketch8.AttachmentSupport = (doc.getObject("XZ_Plane"), [""])
sketch8.MapMode = "FlatFace"
sketch8.AttachmentOffset = App.Placement(App.Vector(0, 0, -42), App.Rotation())
sketch8.addGeometry(Part.LineSegment(App.Vector(0, 69.5, 0), App.Vector(0, 76.5, 0)), False)
sketch8.addGeometry(Part.LineSegment(App.Vector(0, 76.5, 0), App.Vector(7, 76.5, 0)), False)
sketch8.addGeometry(Part.LineSegment(App.Vector(7, 76.5, 0), App.Vector(7, 71.5, 0)), False)
sketch8.addGeometry(Part.ArcOfCircle(Part.Circle(App.Vector(5, 71.5, 0), App.Vector(0, 0, 1), 2), math.radians(-90), math.radians(0)), False)
sketch8.addGeometry(Part.LineSegment(App.Vector(5, 69.5, 0), App.Vector(0, 69.5, 0)), False)
sketch8.addGeometry(Part.Circle(App.Vector(3.3, 73.2, 0), App.Vector(0, 0, 1), 1.3), False)
sketch8.addConstraint(Sketcher.Constraint("Coincident", 0, 2, 1, 1))
sketch8.addConstraint(Sketcher.Constraint("Coincident", 1, 2, 2, 1))
sketch8.addConstraint(Sketcher.Constraint("Tangent", 2, 2, 3, 2))
sketch8.addConstraint(Sketcher.Constraint("Tangent", 3, 1, 4, 1))
sketch8.addConstraint(Sketcher.Constraint("Coincident", 4, 2, 0, 1))
sketch8.addConstraint(Sketcher.Constraint("Vertical", 0))
sketch8.addConstraint(Sketcher.Constraint("Horizontal", 1))
sketch8.addConstraint(Sketcher.Constraint("Vertical", 2))
sketch8.addConstraint(Sketcher.Constraint("Horizontal", 4))
sketch8.addConstraint(Sketcher.Constraint("PointOnObject", 0, 2, -2))
sketch8.addConstraint(Sketcher.Constraint("Equal", 1, 0))
sketch8.addConstraint(Sketcher.Constraint("Radius", 3, 2.0))
sketch8.addConstraint(Sketcher.Constraint("Diameter", 5, 2.6))
sketch8.addConstraint(Sketcher.Constraint("DistanceX", 1, 1, 1, 2, 7.0))
sketch8.addConstraint(Sketcher.Constraint("DistanceY", -1, 1, 3, 3, 71.5))
sketch8.addConstraint(Sketcher.Constraint("DistanceX", -1, 1, 5, 3, 3.3))
sketch8.addConstraint(Sketcher.Constraint("DistanceY", -1, 1, 5, 3, 73.2))
sketch8.setExpression("Constraints[11]", "Params.sketch8_radius")
sketch8.setExpression("Constraints[12]", "Params.sketch8_diameter")
sketch8.setExpression("Constraints[13]", "Params.sketch8_width")
pad6 = body.newObject("PartDesign::Pad", "Pad005")
pad6.Profile = sketch8
pad6.setExpression("Length", "Params.pad6_length")

# Sketch on XY plane
sketch9 = body.newObject("Sketcher::SketchObject", "Sketch008")
sketch9.AttachmentSupport = (doc.getObject("XY_Plane"), [""])
sketch9.MapMode = "FlatFace"
sketch9.AttachmentOffset = App.Placement(App.Vector(0, 0, -5.5), App.Rotation())
sketch9.addGeometry(Part.LineSegment(App.Vector(17.4, 20.4, 0), App.Vector(10.7, 13.4, 0)), False)
sketch9.addGeometry(Part.ArcOfCircle(Part.Circle(App.Vector(12.9, 11.3, 0), App.Vector(0, 0, 1), 3), math.radians(137), math.radians(223)), False)
sketch9.addGeometry(Part.LineSegment(App.Vector(10.7, 9.2, 0), App.Vector(17.4, 2.2, 0)), False)
sketch9.addGeometry(Part.LineSegment(App.Vector(17.4, 2.2, 0), App.Vector(42.6, 2.2, 0)), False)
sketch9.addGeometry(Part.LineSegment(App.Vector(42.6, 2.2, 0), App.Vector(49.3, 9.2, 0)), False)
sketch9.addGeometry(Part.ArcOfCircle(Part.Circle(App.Vector(47.1, 11.3, 0), App.Vector(0, 0, 1), 3), math.radians(-43), math.radians(43)), False)
sketch9.addGeometry(Part.LineSegment(App.Vector(49.3, 13.4, 0), App.Vector(42.6, 20.4, 0)), False)
sketch9.addGeometry(Part.LineSegment(App.Vector(42.6, 20.4, 0), App.Vector(17.4, 20.4, 0)), False)
sketch9.addGeometry(Part.ArcOfCircle(Part.Circle(App.Vector(12.9, 11.3, 0), App.Vector(0, 0, 1), 1), math.radians(137), math.radians(223)), False)
sketch9.addGeometry(Part.LineSegment(App.Vector(12.2, 12, 0), App.Vector(18.2, 18.4, 0)), False)
sketch9.addGeometry(Part.LineSegment(App.Vector(18.2, 18.4, 0), App.Vector(41.8, 18.4, 0)), False)
sketch9.addGeometry(Part.LineSegment(App.Vector(41.8, 18.4, 0), App.Vector(47.8, 12, 0)), False)
sketch9.addGeometry(Part.ArcOfCircle(Part.Circle(App.Vector(47.1, 11.3, 0), App.Vector(0, 0, 1), 1), math.radians(-43), math.radians(43)), False)
sketch9.addGeometry(Part.LineSegment(App.Vector(47.8, 10.6, 0), App.Vector(41.8, 4.2, 0)), False)
sketch9.addGeometry(Part.LineSegment(App.Vector(41.8, 4.2, 0), App.Vector(18.2, 4.2, 0)), False)
sketch9.addGeometry(Part.LineSegment(App.Vector(18.2, 4.2, 0), App.Vector(12.2, 10.6, 0)), False)
sketch9.addConstraint(Sketcher.Constraint("Tangent", 0, 2, 1, 1))
sketch9.addConstraint(Sketcher.Constraint("Tangent", 1, 2, 2, 1))
sketch9.addConstraint(Sketcher.Constraint("Coincident", 2, 2, 3, 1))
sketch9.addConstraint(Sketcher.Constraint("Coincident", 3, 2, 4, 1))
sketch9.addConstraint(Sketcher.Constraint("Tangent", 4, 2, 5, 1))
sketch9.addConstraint(Sketcher.Constraint("Tangent", 5, 2, 6, 1))
sketch9.addConstraint(Sketcher.Constraint("Coincident", 6, 2, 7, 1))
sketch9.addConstraint(Sketcher.Constraint("Coincident", 7, 2, 0, 1))
sketch9.addConstraint(Sketcher.Constraint("Tangent", 8, 1, 9, 1))
sketch9.addConstraint(Sketcher.Constraint("Coincident", 9, 2, 10, 1))
sketch9.addConstraint(Sketcher.Constraint("Coincident", 10, 2, 11, 1))
sketch9.addConstraint(Sketcher.Constraint("Tangent", 11, 2, 12, 2))
sketch9.addConstraint(Sketcher.Constraint("Tangent", 12, 1, 13, 1))
sketch9.addConstraint(Sketcher.Constraint("Coincident", 13, 2, 14, 1))
sketch9.addConstraint(Sketcher.Constraint("Coincident", 14, 2, 15, 1))
sketch9.addConstraint(Sketcher.Constraint("Tangent", 15, 2, 8, 2))
sketch9.addConstraint(Sketcher.Constraint("Horizontal", 3))
sketch9.addConstraint(Sketcher.Constraint("Horizontal", 7))
sketch9.addConstraint(Sketcher.Constraint("Horizontal", 10))
sketch9.addConstraint(Sketcher.Constraint("Horizontal", 14))
sketch9.addConstraint(Sketcher.Constraint("Coincident", 8, 3, 1, 3))
sketch9.addConstraint(Sketcher.Constraint("Coincident", 12, 3, 5, 3))
sketch9.addConstraint(Sketcher.Constraint("Equal", 1, 5))
sketch9.addConstraint(Sketcher.Constraint("Equal", 8, 12))
sketch9.addConstraint(Sketcher.Constraint("Parallel", 0, 4))
sketch9.addConstraint(Sketcher.Constraint("Parallel", 2, 6))
sketch9.addConstraint(Sketcher.Constraint("Parallel", 4, 9))
sketch9.addConstraint(Sketcher.Constraint("Parallel", 6, 11))
sketch9.addConstraint(Sketcher.Constraint("Parallel", 9, 13))
sketch9.addConstraint(Sketcher.Constraint("Parallel", 11, 15))
sketch9.addConstraint(Sketcher.Constraint("Horizontal", 1, 3, 5, 3))
sketch9.addConstraint(Sketcher.Constraint("Horizontal", 1, 2, 4, 2))
sketch9.addConstraint(Sketcher.Constraint("Vertical", 3, 2, 6, 2))
sketch9.addConstraint(Sketcher.Constraint("Vertical", 10, 2, 13, 2))
sketch9.addConstraint(Sketcher.Constraint("Radius", 1, 3.0))
sketch9.addConstraint(Sketcher.Constraint("Radius", 8, 1.0))
sketch9.addConstraint(Sketcher.Constraint("DistanceX", 10, 1, 10, 2, 23.5))
sketch9.addConstraint(Sketcher.Constraint("DistanceY", 9, 2, 7, 2, 2.0))
sketch9.addConstraint(Sketcher.Constraint("DistanceX", -1, 1, 1, 3, 12.9))
sketch9.addConstraint(Sketcher.Constraint("DistanceY", -1, 1, 1, 3, 11.3))
sketch9.addConstraint(Sketcher.Constraint("DistanceX", -1, 1, 5, 3, 47.1))
sketch9.addConstraint(Sketcher.Constraint("DistanceY", -1, 1, 2, 2, 2.2))
sketch9.setExpression("Constraints[34]", "Params.sketch9_radius")
sketch9.setExpression("Constraints[35]", "Params.sketch9_radius2")
sketch9.setExpression("Constraints[36]", "Params.sketch9_width")
pad7 = body.newObject("PartDesign::Pad", "Pad006")
pad7.Profile = sketch9
pad7.setExpression("Length", "Params.pad7_length")

# Sketch on XZ plane
sketch10 = body.newObject("Sketcher::SketchObject", "Sketch009")
sketch10.AttachmentSupport = (doc.getObject("XZ_Plane"), [""])
sketch10.MapMode = "FlatFace"
add_polygon(sketch10, [(57, 10), (57, 13), (60, 13), (60, 10)])  # lines 0-3
sketch10.addConstraint(Sketcher.Constraint("Vertical", 0))
sketch10.addConstraint(Sketcher.Constraint("Horizontal", 1))
sketch10.addConstraint(Sketcher.Constraint("Vertical", 2))
sketch10.addConstraint(Sketcher.Constraint("Horizontal", 3))
sketch10.addConstraint(Sketcher.Constraint("Equal", 3, 0))
sketch10.addConstraint(Sketcher.Constraint("DistanceX", 1, 1, 1, 2, 3.0))
sketch10.addConstraint(Sketcher.Constraint("DistanceX", -1, 1, 0, 2, 57.0))
sketch10.addConstraint(Sketcher.Constraint("DistanceY", -1, 1, 0, 2, 13.0))
sketch10.setExpression("Constraints[9]", "Params.sketch10_width")
pad8 = body.newObject("PartDesign::Pad", "Pad007")
pad8.Profile = sketch10
pad8.setExpression("Length", "Params.pad8_length")
pad8.Reversed = True
doc.recompute()

datumplane3 = body.newObject("PartDesign::Plane", "DatumPlane002")
datumplane3.AttachmentSupport = (doc.getObject("YZ_Plane"), [""])
datumplane3.MapMode = "FlatFace"
datumplane3.AttachmentOffset = App.Placement(App.Vector(0, 0, 30), App.Rotation())
mirrored3 = body.newObject("PartDesign::Mirrored", "Mirrored002")
mirrored3.Originals = [pad8]
mirrored3.MirrorPlane = (datumplane3, [""])
body.Tip = mirrored3

doc.recompute()
